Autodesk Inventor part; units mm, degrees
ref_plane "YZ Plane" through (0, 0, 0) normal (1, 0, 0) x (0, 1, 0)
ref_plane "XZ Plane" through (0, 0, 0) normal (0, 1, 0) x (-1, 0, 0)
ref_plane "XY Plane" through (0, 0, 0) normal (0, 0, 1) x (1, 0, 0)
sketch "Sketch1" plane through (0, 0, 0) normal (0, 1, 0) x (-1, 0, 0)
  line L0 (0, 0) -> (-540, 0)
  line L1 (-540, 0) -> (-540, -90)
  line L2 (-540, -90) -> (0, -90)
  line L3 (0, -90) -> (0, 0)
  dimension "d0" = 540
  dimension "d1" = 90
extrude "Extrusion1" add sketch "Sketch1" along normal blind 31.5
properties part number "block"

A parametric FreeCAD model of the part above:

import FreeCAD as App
import Part
import Sketcher
Q = App.Units.Quantity

doc = App.newDocument("Part")
body = doc.addObject("PartDesign::Body", "Body")

# Sketch on XZ plane
sketch1 = body.newObject("Sketcher::SketchObject", "Sketch")
sketch1.AttachmentSupport = (doc.getObject("XZ_Plane"), [""])
sketch1.MapMode = "FlatFace"
sketch1.addGeometry([
    Part.LineSegment(App.Vector(0, -90, 0), App.Vector(0, 0, 0)),
    Part.LineSegment(App.Vector(0, 0, 0), App.Vector(540, 0, 0)),
    Part.LineSegment(App.Vector(540, 0, 0), App.Vector(540, -90, 0)),
    Part.LineSegment(App.Vector(540, -90, 0), App.Vector(0, -90, 0)),
], False)
sketch1.addConstraint([
    Sketcher.Constraint("Coincident", 0, 2, 1, 1),
    Sketcher.Constraint("Coincident", 1, 2, 2, 1),
    Sketcher.Constraint("Coincident", 2, 2, 3, 1),
    Sketcher.Constraint("Coincident", 3, 2, 0, 1),
    Sketcher.Constraint("Vertical", 0),
    Sketcher.Constraint("Horizontal", 1),
    Sketcher.Constraint("Vertical", 2),
    Sketcher.Constraint("Horizontal", 3),
    Sketcher.Constraint("Coincident", 0, 2, -1, 1),
    Sketcher.Constraint("DistanceX", 1, 1, 1, 2, Q("540 mm")),
    Sketcher.Constraint("DistanceY", 0, 1, 0, 2, Q("90 mm")),
])
pad1 = body.newObject("PartDesign::Pad", "Pad")
pad1.Profile = sketch1
pad1.Length = 31.5
pad1.Reversed = True

doc.recompute()
